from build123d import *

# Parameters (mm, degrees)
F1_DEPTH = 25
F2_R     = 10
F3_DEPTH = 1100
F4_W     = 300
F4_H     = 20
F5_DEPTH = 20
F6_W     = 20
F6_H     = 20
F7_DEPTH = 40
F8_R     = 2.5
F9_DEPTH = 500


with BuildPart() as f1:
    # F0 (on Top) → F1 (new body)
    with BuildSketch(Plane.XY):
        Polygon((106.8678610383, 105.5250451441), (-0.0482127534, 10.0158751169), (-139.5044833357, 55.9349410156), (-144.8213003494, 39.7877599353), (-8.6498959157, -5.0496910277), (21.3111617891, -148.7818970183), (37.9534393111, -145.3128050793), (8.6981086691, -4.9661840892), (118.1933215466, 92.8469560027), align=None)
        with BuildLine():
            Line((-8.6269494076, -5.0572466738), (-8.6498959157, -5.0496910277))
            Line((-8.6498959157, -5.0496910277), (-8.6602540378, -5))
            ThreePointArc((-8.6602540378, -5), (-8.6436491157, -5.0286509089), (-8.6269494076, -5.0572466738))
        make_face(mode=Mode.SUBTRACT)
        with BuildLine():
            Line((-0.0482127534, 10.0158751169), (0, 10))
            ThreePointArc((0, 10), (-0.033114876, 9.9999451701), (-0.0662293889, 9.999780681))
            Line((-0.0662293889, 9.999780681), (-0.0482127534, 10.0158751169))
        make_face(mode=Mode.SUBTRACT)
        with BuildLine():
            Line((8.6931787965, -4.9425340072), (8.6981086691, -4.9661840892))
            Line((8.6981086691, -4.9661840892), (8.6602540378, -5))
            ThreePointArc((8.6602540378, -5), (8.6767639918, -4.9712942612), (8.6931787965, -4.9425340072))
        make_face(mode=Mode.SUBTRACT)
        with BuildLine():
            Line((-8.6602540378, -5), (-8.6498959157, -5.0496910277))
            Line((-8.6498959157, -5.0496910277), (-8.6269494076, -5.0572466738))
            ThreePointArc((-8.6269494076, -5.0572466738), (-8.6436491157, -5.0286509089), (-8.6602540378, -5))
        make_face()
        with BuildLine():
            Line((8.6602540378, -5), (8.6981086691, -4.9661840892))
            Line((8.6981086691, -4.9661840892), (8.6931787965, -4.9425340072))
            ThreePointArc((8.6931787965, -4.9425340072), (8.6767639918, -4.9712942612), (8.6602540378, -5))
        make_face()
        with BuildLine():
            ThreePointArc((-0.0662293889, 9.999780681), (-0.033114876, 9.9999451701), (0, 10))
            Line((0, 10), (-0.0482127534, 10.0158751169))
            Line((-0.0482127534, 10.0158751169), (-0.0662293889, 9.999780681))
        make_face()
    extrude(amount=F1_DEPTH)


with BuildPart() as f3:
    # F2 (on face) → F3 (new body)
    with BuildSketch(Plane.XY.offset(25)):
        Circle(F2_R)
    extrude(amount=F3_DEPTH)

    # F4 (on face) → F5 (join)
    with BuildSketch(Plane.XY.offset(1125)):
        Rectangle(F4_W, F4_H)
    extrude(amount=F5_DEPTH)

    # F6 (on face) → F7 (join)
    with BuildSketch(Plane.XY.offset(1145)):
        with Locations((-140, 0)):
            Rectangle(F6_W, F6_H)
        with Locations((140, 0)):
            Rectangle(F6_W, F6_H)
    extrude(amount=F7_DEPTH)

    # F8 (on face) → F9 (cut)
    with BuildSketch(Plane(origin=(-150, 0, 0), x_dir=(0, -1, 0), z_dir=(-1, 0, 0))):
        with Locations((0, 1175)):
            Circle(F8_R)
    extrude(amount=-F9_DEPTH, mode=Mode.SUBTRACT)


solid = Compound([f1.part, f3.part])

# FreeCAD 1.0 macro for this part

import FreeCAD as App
import Part
import Sketcher

doc = App.newDocument("Part")
body = doc.addObject("PartDesign::Body", "Body")

sketch1 = body.newObject("Sketcher::SketchObject", "Sketch")
sketch1.AttachmentSupport = (doc.getObject("XY_Plane"), [""])
sketch1.MapMode = "FlatFace"
sketch1.addGeometry([
    Part.LineSegment(App.Vector(106.867861, 105.525045, 0), App.Vector(-0.048213, 10.015875, 0)),
    Part.LineSegment(App.Vector(-0.048213, 10.015875, 0), App.Vector(-139.504483, 55.934941, 0)),
    Part.LineSegment(App.Vector(-139.504483, 55.934941, 0), App.Vector(-144.8213, 39.78776, 0)),
    Part.LineSegment(App.Vector(-144.8213, 39.78776, 0), App.Vector(-8.649896, -5.049691, 0)),
    Part.LineSegment(App.Vector(-8.649896, -5.049691, 0), App.Vector(21.311162, -148.781897, 0)),
    Part.LineSegment(App.Vector(21.311162, -148.781897, 0), App.Vector(37.953439, -145.312805, 0)),
    Part.LineSegment(App.Vector(37.953439, -145.312805, 0), App.Vector(8.698109, -4.966184, 0)),
    Part.LineSegment(App.Vector(8.698109, -4.966184, 0), App.Vector(118.193322, 92.846956, 0)),
    Part.LineSegment(App.Vector(118.193322, 92.846956, 0), App.Vector(106.867861, 105.525045, 0)),
], False)
sketch1.addConstraint([
    Sketcher.Constraint("Coincident", 0, 2, 1, 1),
    Sketcher.Constraint("Coincident", 1, 2, 2, 1),
    Sketcher.Constraint("Coincident", 2, 2, 3, 1),
    Sketcher.Constraint("Coincident", 3, 2, 4, 1),
    Sketcher.Constraint("Coincident", 4, 2, 5, 1),
    Sketcher.Constraint("Coincident", 5, 2, 6, 1),
    Sketcher.Constraint("Coincident", 6, 2, 7, 1),
    Sketcher.Constraint("Coincident", 7, 2, 8, 1),
    Sketcher.Constraint("Coincident", 8, 2, 0, 1),
    Sketcher.Constraint("Perpendicular", 1, 2),
    Sketcher.Constraint("Perpendicular", 2, 3),
    Sketcher.Constraint("Perpendicular", 4, 5),
    Sketcher.Constraint("Perpendicular", 5, 6),
    Sketcher.Constraint("Parallel", 0, 7),
    Sketcher.Constraint("Perpendicular", 7, 8),
    Sketcher.Constraint("Equal", 0, 3),
    Sketcher.Constraint("Equal", 1, 4),
    Sketcher.Constraint("Equal", 2, 5),
    Sketcher.Constraint("Equal", 3, 6),
    Sketcher.Constraint("Equal", 4, 7),
    Sketcher.Constraint("Equal", 5, 8),
    Sketcher.Constraint("Distance", 2, 17.0),
    Sketcher.Constraint("Distance", 1, 146.821701),
    Sketcher.Constraint("DistanceX", 2, 2, -1, 1, 144.8213),
    Sketcher.Constraint("DistanceY", -1, 1, 1, 2, 55.934941),
    Sketcher.Constraint("DistanceY", -1, 1, 2, 2, 39.78776),
    Sketcher.Constraint("DistanceY", 3, 2, -1, 1, 5.049691),
])
pad1 = body.newObject("PartDesign::Pad", "Pad")
pad1.Profile = sketch1
pad1.Length = 25
body2 = doc.addObject("PartDesign::Body", "Body001")

sketch2 = body2.newObject("Sketcher::SketchObject", "Sketch001")
sketch2.AttachmentSupport = (doc.getObject("XY_Plane001"), [""])
sketch2.MapMode = "FlatFace"
sketch2.AttachmentOffset = App.Placement(App.Vector(0, 0, 25), App.Rotation())
sketch2.addGeometry(Part.Circle(App.Vector(0, 0, 0), App.Vector(0, 0, 1), 10), False)
sketch2.addConstraint([
    Sketcher.Constraint("Coincident", 0, 3, -1, 1),
    Sketcher.Constraint("Diameter", 0, 20.0),
])
pad2 = body2.newObject("PartDesign::Pad", "Pad001")
pad2.Profile = sketch2
pad2.Length = 1100

sketch3 = body2.newObject("Sketcher::SketchObject", "Sketch002")
sketch3.AttachmentSupport = (doc.getObject("XY_Plane001"), [""])
sketch3.MapMode = "FlatFace"
sketch3.AttachmentOffset = App.Placement(App.Vector(0, 0, 1125), App.Rotation())
sketch3.addGeometry([
    Part.LineSegment(App.Vector(-150, 10, 0), App.Vector(-150, -10, 0)),
    Part.LineSegment(App.Vector(-150, -10, 0), App.Vector(150, -10, 0)),
    Part.LineSegment(App.Vector(150, -10, 0), App.Vector(150, 10, 0)),
    Part.LineSegment(App.Vector(150, 10, 0), App.Vector(-150, 10, 0)),
], False)
sketch3.addConstraint([
    Sketcher.Constraint("Coincident", 0, 2, 1, 1),
    Sketcher.Constraint("Coincident", 1, 2, 2, 1),
    Sketcher.Constraint("Coincident", 2, 2, 3, 1),
    Sketcher.Constraint("Coincident", 3, 2, 0, 1),
    Sketcher.Constraint("Vertical", 0),
    Sketcher.Constraint("Horizontal", 1),
    Sketcher.Constraint("Vertical", 2),
    Sketcher.Constraint("Horizontal", 3),
    Sketcher.Constraint("Symmetric", 0, 2, 2, 2, -1, 1),
    Sketcher.Constraint("DistanceX", 1, 1, 1, 2, 300.0),
    Sketcher.Constraint("DistanceY", 0, 2, 0, 1, 20.0),
])
pad3 = body2.newObject("PartDesign::Pad", "Pad002")
pad3.Profile = sketch3
pad3.Length = 20

sketch4 = body2.newObject("Sketcher::SketchObject", "Sketch003")
sketch4.AttachmentSupport = (doc.getObject("XY_Plane001"), [""])
sketch4.MapMode = "FlatFace"
sketch4.AttachmentOffset = App.Placement(App.Vector(0, 0, 1145), App.Rotation())
sketch4.addGeometry([
    Part.LineSegment(App.Vector(-150, 10, 0), App.Vector(-150, -10, 0)),
    Part.LineSegment(App.Vector(-150, -10, 0), App.Vector(-130, -10, 0)),
    Part.LineSegment(App.Vector(-130, -10, 0), App.Vector(-130, 10, 0)),
    Part.LineSegment(App.Vector(-130, 10, 0), App.Vector(-150, 10, 0)),
    Part.LineSegment(App.Vector(130, 10, 0), App.Vector(130, -10, 0)),
    Part.LineSegment(App.Vector(130, -10, 0), App.Vector(150, -10, 0)),
    Part.LineSegment(App.Vector(150, -10, 0), App.Vector(150, 10, 0)),
    Part.LineSegment(App.Vector(150, 10, 0), App.Vector(130, 10, 0)),
], False)
sketch4.addConstraint([
    Sketcher.Constraint("Coincident", 0, 2, 1, 1),
    Sketcher.Constraint("Coincident", 1, 2, 2, 1),
    Sketcher.Constraint("Coincident", 2, 2, 3, 1),
    Sketcher.Constraint("Coincident", 3, 2, 0, 1),
    Sketcher.Constraint("Coincident", 4, 2, 5, 1),
    Sketcher.Constraint("Coincident", 5, 2, 6, 1),
    Sketcher.Constraint("Coincident", 6, 2, 7, 1),
    Sketcher.Constraint("Coincident", 7, 2, 4, 1),
    Sketcher.Constraint("Vertical", 0),
    Sketcher.Constraint("Horizontal", 1),
    Sketcher.Constraint("Vertical", 2),
    Sketcher.Constraint("Horizontal", 3),
    Sketcher.Constraint("Vertical", 4),
    Sketcher.Constraint("Horizontal", 5),
    Sketcher.Constraint("Vertical", 6),
    Sketcher.Constraint("Horizontal", 7),
    Sketcher.Constraint("Symmetric", 2, 2, 4, 2, -1, 1),
    Sketcher.Constraint("Symmetric", 0, 2, 6, 2, -1, 1),
    Sketcher.Constraint("Horizontal", 1, 2, 4, 2),
    Sketcher.Constraint("Equal", 7, 0),
    Sketcher.Constraint("DistanceX", 1, 1, 1, 2, 20.0),
    Sketcher.Constraint("DistanceX", 0, 2, -1, 1, 150.0),
])
pad4 = body2.newObject("PartDesign::Pad", "Pad003")
pad4.Profile = sketch4
pad4.Length = 40

sketch5 = body2.newObject("Sketcher::SketchObject", "Sketch004")
sketch5.AttachmentSupport = (doc.getObject("YZ_Plane001"), [""])
sketch5.MapMode = "FlatFace"
sketch5.AttachmentOffset = App.Placement(App.Vector(0, 0, -150), App.Rotation())
sketch5.addGeometry(Part.Circle(App.Vector(0, 1175, 0), App.Vector(0, 0, 1), 2.5), False)
sketch5.addConstraint([
    Sketcher.Constraint("PointOnObject", 0, 3, -2),
    Sketcher.Constraint("Diameter", 0, 5.0),
    Sketcher.Constraint("DistanceY", -1, 1, 0, 3, 1175.0),
])
pocket1 = body2.newObject("PartDesign::Pocket", "Pocket")
pocket1.Profile = sketch5
pocket1.Length = 500
pocket1.Reversed = True

doc.recompute()
